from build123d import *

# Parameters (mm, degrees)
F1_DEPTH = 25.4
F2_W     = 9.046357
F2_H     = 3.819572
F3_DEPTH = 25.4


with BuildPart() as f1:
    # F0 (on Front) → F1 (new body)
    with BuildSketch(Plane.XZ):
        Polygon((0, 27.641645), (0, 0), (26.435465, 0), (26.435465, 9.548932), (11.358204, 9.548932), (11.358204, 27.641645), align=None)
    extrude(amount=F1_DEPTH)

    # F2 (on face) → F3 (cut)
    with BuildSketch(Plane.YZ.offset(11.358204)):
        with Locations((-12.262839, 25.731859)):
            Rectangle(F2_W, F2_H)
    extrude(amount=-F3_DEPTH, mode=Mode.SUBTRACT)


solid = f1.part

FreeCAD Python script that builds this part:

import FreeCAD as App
import Part
import Sketcher
Q = App.Units.Quantity

doc = App.newDocument("Part")
body = doc.addObject("PartDesign::Body", "Body")

# Sketch on XZ plane
sketch1 = doc.addObject("Sketcher::SketchObject", "Sketch")
body.addObject(sketch1)
sketch1.AttachmentSupport = (doc.XZ_Plane, [""])
sketch1.MapMode = "FlatFace"
sketch1.addGeometry([
    Part.LineSegment(App.Vector(0, 28, 0), App.Vector(0, 0, 0)),  # 0
    Part.LineSegment(App.Vector(0, 0, 0), App.Vector(26, 0, 0)),  # 1
    Part.LineSegment(App.Vector(26, 0, 0), App.Vector(26, 10, 0)),  # 2
    Part.LineSegment(App.Vector(26, 10, 0), App.Vector(11, 10, 0)),  # 3
    Part.LineSegment(App.Vector(11, 10, 0), App.Vector(11, 28, 0)),  # 4
    Part.LineSegment(App.Vector(11, 28, 0), App.Vector(0, 28, 0)),  # 5
], False)
sketch1.addConstraint([
    Sketcher.Constraint("Coincident", 0, 2, 1, 1),
    Sketcher.Constraint("Coincident", 1, 2, 2, 1),
    Sketcher.Constraint("Coincident", 2, 2, 3, 1),
    Sketcher.Constraint("Coincident", 3, 2, 4, 1),
    Sketcher.Constraint("Coincident", 4, 2, 5, 1),
    Sketcher.Constraint("Coincident", 5, 2, 0, 1),
    Sketcher.Constraint("Vertical", 0),
    Sketcher.Constraint("Horizontal", 1),
    Sketcher.Constraint("Vertical", 2),
    Sketcher.Constraint("Horizontal", 3),
    Sketcher.Constraint("Vertical", 4),
    Sketcher.Constraint("Horizontal", 5),
    Sketcher.Constraint("Coincident", 0, 2, -1, 1),
    Sketcher.Constraint("DistanceX", 3, 2, 3, 1, Q("15.077261 mm")),
    Sketcher.Constraint("DistanceX", 1, 1, 1, 2, Q("26.435465 mm")),
    Sketcher.Constraint("DistanceY", 0, 2, 0, 1, Q("27.641645 mm")),
    Sketcher.Constraint("DistanceY", 2, 1, 2, 2, Q("9.548932 mm")),
])
pad1 = doc.addObject("PartDesign::Pad", "Pad")
body.addObject(pad1)
pad1.Profile = sketch1
pad1.Length = Q("1 in")

# Sketch on YZ plane
sketch2 = doc.addObject("Sketcher::SketchObject", "Sketch001")
body.addObject(sketch2)
sketch2.AttachmentSupport = (doc.YZ_Plane, [""])
sketch2.MapMode = "FlatFace"
sketch2.AttachmentOffset = App.Placement(App.Vector(0, 0, 11.358204), App.Rotation())
sketch2.addGeometry([
    Part.LineSegment(App.Vector(-16.8, 27.6, 0), App.Vector(-16.8, 23.8, 0)),
    Part.LineSegment(App.Vector(-16.8, 23.8, 0), App.Vector(-7.7, 23.8, 0)),
    Part.LineSegment(App.Vector(-7.7, 23.8, 0), App.Vector(-7.7, 27.6, 0)),
    Part.LineSegment(App.Vector(-7.7, 27.6, 0), App.Vector(-16.8, 27.6, 0)),
], False)
sketch2.addConstraint([
    Sketcher.Constraint("Coincident", 0, 2, 1, 1),
    Sketcher.Constraint("Coincident", 1, 2, 2, 1),
    Sketcher.Constraint("Coincident", 2, 2, 3, 1),
    Sketcher.Constraint("Coincident", 3, 2, 0, 1),
    Sketcher.Constraint("Vertical", 0),
    Sketcher.Constraint("Horizontal", 1),
    Sketcher.Constraint("Vertical", 2),
    Sketcher.Constraint("Horizontal", 3),
    Sketcher.Constraint("DistanceX", 1, 1, 1, 2, Q("9.046357 mm")),
    Sketcher.Constraint("DistanceY", 0, 2, 0, 1, Q("3.819572 mm")),
    Sketcher.Constraint("DistanceX", 1, 2, -1, 1, Q("7.739661 mm")),
    Sketcher.Constraint("DistanceY", -1, 1, 0, 2, Q("23.822073 mm")),
])
pocket1 = doc.addObject("PartDesign::Pocket", "Pocket")
body.addObject(pocket1)
pocket1.Profile = sketch2
pocket1.Length = Q("1 in")

doc.recompute()
